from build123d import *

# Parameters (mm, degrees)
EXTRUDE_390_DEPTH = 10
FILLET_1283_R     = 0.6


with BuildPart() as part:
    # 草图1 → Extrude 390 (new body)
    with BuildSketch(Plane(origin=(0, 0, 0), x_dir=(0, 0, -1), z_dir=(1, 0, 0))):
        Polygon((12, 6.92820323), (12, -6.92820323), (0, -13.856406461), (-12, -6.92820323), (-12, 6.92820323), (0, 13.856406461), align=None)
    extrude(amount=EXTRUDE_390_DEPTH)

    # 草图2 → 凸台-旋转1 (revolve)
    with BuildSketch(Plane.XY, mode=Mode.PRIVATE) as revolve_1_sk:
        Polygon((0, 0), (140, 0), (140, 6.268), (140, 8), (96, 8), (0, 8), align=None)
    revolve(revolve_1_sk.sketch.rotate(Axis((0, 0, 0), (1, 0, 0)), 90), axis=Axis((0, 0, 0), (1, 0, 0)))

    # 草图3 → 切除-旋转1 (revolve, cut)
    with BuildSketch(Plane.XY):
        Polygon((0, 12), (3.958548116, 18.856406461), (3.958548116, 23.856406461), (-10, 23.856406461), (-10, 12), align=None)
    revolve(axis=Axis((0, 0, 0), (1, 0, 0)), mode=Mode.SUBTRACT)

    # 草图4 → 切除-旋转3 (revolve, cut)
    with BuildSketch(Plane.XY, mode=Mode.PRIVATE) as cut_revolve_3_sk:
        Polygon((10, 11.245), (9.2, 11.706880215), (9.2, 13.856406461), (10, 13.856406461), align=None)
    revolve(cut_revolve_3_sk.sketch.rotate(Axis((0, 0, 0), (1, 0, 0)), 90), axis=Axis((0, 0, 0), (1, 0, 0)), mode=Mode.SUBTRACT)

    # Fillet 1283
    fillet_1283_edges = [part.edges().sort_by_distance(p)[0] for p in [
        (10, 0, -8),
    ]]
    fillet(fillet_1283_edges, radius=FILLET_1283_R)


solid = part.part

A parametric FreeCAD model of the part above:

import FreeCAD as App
import Part
import Sketcher

V = App.Vector
Q = App.Units.Quantity


def edges_at(feature, points):
    """Names of the edges that pass closest to the given points."""
    edges = feature.Shape.Edges
    near = lambda p: min(range(len(edges)), key=lambda i: edges[i].distToShape(Part.Vertex(*p))[0])
    return sorted({f"Edge{near(p) + 1}" for p in points})

doc = App.newDocument("Part")
body = doc.addObject("PartDesign::Body", "Body")

sketch1 = body.newObject("Sketcher::SketchObject", "Sketch")
sketch1.AttachmentSupport = (doc.getObject("YZ_Plane"), [""])
sketch1.MapMode = "FlatFace"
sketch1.addGeometry([
    Part.LineSegment(V(-7, -12, 0), V(7, -12, 0)),
    Part.LineSegment(V(7, -12, 0), V(14, 0, 0)),
    Part.LineSegment(V(14, 0, 0), V(7, 12, 0)),
    Part.LineSegment(V(7, 12, 0), V(-7, 12, 0)),
    Part.LineSegment(V(-7, 12, 0), V(-14, 0, 0)),
    Part.LineSegment(V(-14, 0, 0), V(-7, -12, 0)),
], False)
sketch1.addConstraint([
    Sketcher.Constraint("Coincident", 0, 2, 1, 1),
    Sketcher.Constraint("Coincident", 1, 2, 2, 1),
    Sketcher.Constraint("Coincident", 2, 2, 3, 1),
    Sketcher.Constraint("Coincident", 3, 2, 4, 1),
    Sketcher.Constraint("Coincident", 4, 2, 5, 1),
    Sketcher.Constraint("Coincident", 5, 2, 0, 1),
    Sketcher.Constraint("Horizontal", 0),
    Sketcher.Constraint("Horizontal", 3),
    Sketcher.Constraint("Symmetric", 0, 2, 3, 2, -1, 1),
    Sketcher.Constraint("Symmetric", 1, 2, 4, 2, -1, 1),
    Sketcher.Constraint("PointOnObject", 1, 2, -1),
    Sketcher.Constraint("Parallel", 2, 5),
    Sketcher.Constraint("Vertical", 0, 2, 2, 2),
    Sketcher.Constraint("Angle", 1, Q("60 deg")),
    Sketcher.Constraint("DistanceY", 0, 2, -1, 1, Q("12 mm")),
    Sketcher.Constraint("DistanceX", 0, 1, 0, 2, Q("13.856406 mm")),
])
pad1 = body.newObject("PartDesign::Pad", "Pad")
pad1.Profile = sketch1
pad1.Length = 10

sketch2 = body.newObject("Sketcher::SketchObject", "Sketch001")
sketch2.AttachmentSupport = (doc.getObject("XY_Plane"), [""])
sketch2.MapMode = "FlatFace"
sketch2.addGeometry([
    Part.LineSegment(V(0, 0, 0), V(140, 0, 0)),
    Part.LineSegment(V(140, 0, 0), V(140, 8, 0)),
    Part.LineSegment(V(140, 8, 0), V(0, 8, 0)),
    Part.LineSegment(V(0, 8, 0), V(0, 0, 0)),
], False)
sketch2.addConstraint([
    Sketcher.Constraint("Coincident", 0, 2, 1, 1),
    Sketcher.Constraint("Coincident", 1, 2, 2, 1),
    Sketcher.Constraint("Coincident", 2, 2, 3, 1),
    Sketcher.Constraint("Coincident", 3, 2, 0, 1),
    Sketcher.Constraint("Horizontal", 0),
    Sketcher.Constraint("Vertical", 1),
    Sketcher.Constraint("Horizontal", 2),
    Sketcher.Constraint("Vertical", 3),
    Sketcher.Constraint("Coincident", 3, 2, -1, 1),
    Sketcher.Constraint("DistanceX", 0, 1, 0, 2, Q("140 mm")),
    Sketcher.Constraint("DistanceY", 1, 1, 1, 2, Q("8 mm")),
])
revolution = body.newObject("PartDesign::Revolution", "Revolution")
revolution.Profile = sketch2
revolution.ReferenceAxis = (sketch2, ["H_Axis"])
revolution.Angle = 360

sketch3 = body.newObject("Sketcher::SketchObject", "Sketch002")
sketch3.AttachmentSupport = (doc.getObject("XY_Plane"), [""])
sketch3.MapMode = "FlatFace"
sketch3.addGeometry([
    Part.LineSegment(V(0, 12, 0), V(4, 19, 0)),
    Part.LineSegment(V(4, 19, 0), V(4, 24, 0)),
    Part.LineSegment(V(4, 24, 0), V(-10, 24, 0)),
    Part.LineSegment(V(-10, 24, 0), V(-10, 12, 0)),
    Part.LineSegment(V(-10, 12, 0), V(0, 12, 0)),
], False)
sketch3.addConstraint([
    Sketcher.Constraint("Coincident", 0, 2, 1, 1),
    Sketcher.Constraint("Coincident", 1, 2, 2, 1),
    Sketcher.Constraint("Coincident", 2, 2, 3, 1),
    Sketcher.Constraint("Coincident", 3, 2, 4, 1),
    Sketcher.Constraint("Coincident", 4, 2, 0, 1),
    Sketcher.Constraint("Vertical", 1),
    Sketcher.Constraint("Horizontal", 2),
    Sketcher.Constraint("Vertical", 3),
    Sketcher.Constraint("Horizontal", 4),
    Sketcher.Constraint("PointOnObject", 4, 2, -2),
    Sketcher.Constraint("DistanceX", 4, 1, 4, 2, Q("10 mm")),
    Sketcher.Constraint("DistanceY", 1, 1, 1, 2, Q("5 mm")),
    Sketcher.Constraint("Angle", 0, Q("60 deg")),
    Sketcher.Constraint("DistanceY", -1, 1, 3, 2, Q("12 mm")),
    Sketcher.Constraint("DistanceX", 2, 2, 2, 1, Q("13.958548 mm")),
])
groove = body.newObject("PartDesign::Groove", "Groove")
groove.Profile = sketch3
groove.ReferenceAxis = (sketch3, ["H_Axis"])
groove.Angle = 360

sketch4 = body.newObject("Sketcher::SketchObject", "Sketch003")
sketch4.AttachmentSupport = (doc.getObject("XY_Plane"), [""])
sketch4.MapMode = "FlatFace"
sketch4.addGeometry([
    Part.LineSegment(V(9.2, 11.7, 0), V(10, 11.2, 0)),
    Part.LineSegment(V(10, 11.2, 0), V(10, 13.9, 0)),
    Part.LineSegment(V(10, 13.9, 0), V(9.2, 13.9, 0)),
    Part.LineSegment(V(9.2, 13.9, 0), V(9.2, 11.7, 0)),
], False)
sketch4.addConstraint([
    Sketcher.Constraint("Coincident", 0, 2, 1, 1),
    Sketcher.Constraint("Coincident", 1, 2, 2, 1),
    Sketcher.Constraint("Coincident", 2, 2, 3, 1),
    Sketcher.Constraint("Coincident", 3, 2, 0, 1),
    Sketcher.Constraint("Vertical", 1),
    Sketcher.Constraint("Horizontal", 2),
    Sketcher.Constraint("Vertical", 3),
    Sketcher.Constraint("Angle", 0, Q("-30 deg")),
    Sketcher.Constraint("DistanceX", 2, 2, 2, 1, Q("0.8 mm")),
    Sketcher.Constraint("DistanceX", -1, 1, 0, 2, Q("10 mm")),
    Sketcher.Constraint("DistanceY", -1, 1, 0, 2, Q("11.245 mm")),
    Sketcher.Constraint("DistanceY", 1, 1, 1, 2, Q("2.611406 mm")),
])
groove2 = body.newObject("PartDesign::Groove", "Groove001")
groove2.Profile = sketch4
groove2.ReferenceAxis = (sketch4, ["H_Axis"])
groove2.Angle = 360
doc.recompute()

fillet = body.newObject("PartDesign::Fillet", "Fillet")
fillet.Base = (groove2, edges_at(groove2, [(10, 0, -8)]))
fillet.Radius = 0.6

doc.recompute()
